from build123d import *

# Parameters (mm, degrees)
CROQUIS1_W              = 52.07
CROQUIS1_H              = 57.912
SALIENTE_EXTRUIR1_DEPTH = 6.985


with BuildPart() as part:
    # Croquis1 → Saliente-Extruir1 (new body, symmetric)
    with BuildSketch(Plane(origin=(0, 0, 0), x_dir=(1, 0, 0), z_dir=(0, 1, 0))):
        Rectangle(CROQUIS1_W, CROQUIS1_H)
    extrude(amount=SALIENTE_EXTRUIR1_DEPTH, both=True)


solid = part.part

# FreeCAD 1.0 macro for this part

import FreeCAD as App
import Part
import Sketcher
from FreeCAD import Vector
Q = App.Units.Quantity


def add_polygon(sketch, points):
    """Adds a closed chain of lines whose ends are joined by coincident constraints."""
    first, n = sketch.GeometryCount, len(points)
    for a, b in zip(points, points[1:] + points[:1]):
        sketch.addGeometry(Part.LineSegment(App.Vector(*a, 0), App.Vector(*b, 0)), False)
    for i in range(n):
        sketch.addConstraint(Sketcher.Constraint("Coincident", first + i, 2, first + (i + 1) % n, 1))

doc = App.newDocument("Part")
body = doc.addObject("PartDesign::Body", "Body")

sketch1 = body.newObject("Sketcher::SketchObject", "Sketch")
sketch1.AttachmentSupport = (doc.getObject("XZ_Plane"), [""])
sketch1.MapMode = "FlatFace"
add_polygon(sketch1, [(-26, -29), (-26, 29), (26, 29), (26, -29)])
sketch1.addConstraint(Sketcher.Constraint("Vertical", 0))
sketch1.addConstraint(Sketcher.Constraint("Horizontal", 1))
sketch1.addConstraint(Sketcher.Constraint("Vertical", 2))
sketch1.addConstraint(Sketcher.Constraint("Horizontal", 3))
sketch1.addConstraint(Sketcher.Constraint("Symmetric", 0, 2, 2, 2, -1, 1))
sketch1.addConstraint(Sketcher.Constraint("DistanceX", 1, 1, 1, 2, Q("2.05 in")))
sketch1.addConstraint(Sketcher.Constraint("DistanceY", 0, 1, 0, 2, Q("2.28 in")))
pad1 = body.newObject("PartDesign::Pad", "Pad")
pad1.Profile = sketch1
pad1.Length = Q("0.55 in")
pad1.Midplane = True

doc.recompute()
